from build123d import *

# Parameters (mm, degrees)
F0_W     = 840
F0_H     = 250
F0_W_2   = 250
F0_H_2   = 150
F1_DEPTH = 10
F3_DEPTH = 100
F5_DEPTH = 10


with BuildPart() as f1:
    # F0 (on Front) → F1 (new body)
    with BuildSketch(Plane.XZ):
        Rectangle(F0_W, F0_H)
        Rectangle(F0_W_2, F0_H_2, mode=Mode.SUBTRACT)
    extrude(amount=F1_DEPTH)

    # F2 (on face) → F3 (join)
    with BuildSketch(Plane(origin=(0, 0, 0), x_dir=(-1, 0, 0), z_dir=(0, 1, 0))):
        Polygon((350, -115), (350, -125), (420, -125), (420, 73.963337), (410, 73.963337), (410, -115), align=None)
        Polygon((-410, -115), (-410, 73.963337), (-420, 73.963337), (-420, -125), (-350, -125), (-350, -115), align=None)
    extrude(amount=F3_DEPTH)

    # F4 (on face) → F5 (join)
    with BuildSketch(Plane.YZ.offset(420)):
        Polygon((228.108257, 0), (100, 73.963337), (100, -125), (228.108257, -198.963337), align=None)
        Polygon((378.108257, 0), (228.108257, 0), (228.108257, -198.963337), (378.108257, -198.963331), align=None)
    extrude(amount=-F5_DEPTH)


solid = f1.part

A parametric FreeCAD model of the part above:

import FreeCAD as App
import Part
import Sketcher
Q = App.Units.Quantity


def add_polygon(sketch, points):
    """Adds a closed chain of lines whose ends are joined by coincident constraints."""
    first, n = sketch.GeometryCount, len(points)
    for a, b in zip(points, points[1:] + points[:1]):
        sketch.addGeometry(Part.LineSegment(App.Vector(*a, 0), App.Vector(*b, 0)), False)
    for i in range(n):
        sketch.addConstraint(Sketcher.Constraint("Coincident", first + i, 2, first + (i + 1) % n, 1))

doc = App.newDocument("Part")
body = doc.addObject("PartDesign::Body", "Body")

# Sketch on XZ plane
sketch1 = body.newObject("Sketcher::SketchObject", "Sketch")
sketch1.AttachmentSupport = (doc.getObject("XZ_Plane"), [""])
sketch1.MapMode = "FlatFace"
add_polygon(sketch1, [(-420, 125), (-420, -125), (420, -125), (420, 125)])  # lines 0-3
add_polygon(sketch1, [(125, -75), (-125, -75), (-125, 75), (125, 75)])  # lines 4-7
sketch1.addConstraint([
    Sketcher.Constraint("Vertical", 0),
    Sketcher.Constraint("Horizontal", 1),
    Sketcher.Constraint("Vertical", 2),
    Sketcher.Constraint("Horizontal", 3),
    Sketcher.Constraint("Horizontal", 4),
    Sketcher.Constraint("Vertical", 5),
    Sketcher.Constraint("Horizontal", 6),
    Sketcher.Constraint("Vertical", 7),
    Sketcher.Constraint("Symmetric", 0, 2, 2, 2, -1, 1),
    Sketcher.Constraint("Symmetric", 4, 2, 6, 2, -1, 1),
    Sketcher.Constraint("Equal", 6, 0),
    Sketcher.Constraint("DistanceX", 1, 1, 1, 2, 840.0),
    Sketcher.Constraint("DistanceX", 4, 2, 4, 1, 250.0),
    Sketcher.Constraint("DistanceY", 5, 1, 5, 2, 150.0),
])
pad1 = body.newObject("PartDesign::Pad", "Pad")
pad1.Profile = sketch1
pad1.Length = 10

# Sketch on XZ plane
sketch2 = body.newObject("Sketcher::SketchObject", "Sketch001")
sketch2.AttachmentSupport = (doc.getObject("XZ_Plane"), [""])
sketch2.MapMode = "FlatFace"
add_polygon(sketch2, [(-350, -115), (-350, -125), (-420, -125), (-420, 73.963337), (-410, 73.963337), (-410, -115)])  # lines 0-5
add_polygon(sketch2, [(410, -115), (410, 73.963337), (420, 73.963337), (420, -125), (350, -125), (350, -115)])  # lines 6-11
sketch2.addConstraint([
    Sketcher.Constraint("Vertical", 0),
    Sketcher.Constraint("Horizontal", 1),
    Sketcher.Constraint("Vertical", 2),
    Sketcher.Constraint("Horizontal", 3),
    Sketcher.Constraint("Vertical", 4),
    Sketcher.Constraint("Horizontal", 5),
    Sketcher.Constraint("Vertical", 6),
    Sketcher.Constraint("Horizontal", 7),
    Sketcher.Constraint("Vertical", 8),
    Sketcher.Constraint("Horizontal", 9),
    Sketcher.Constraint("Vertical", 10),
    Sketcher.Constraint("Horizontal", 11),
    Sketcher.Constraint("Symmetric", 3, 2, 6, 2, -2),
    Sketcher.Constraint("Symmetric", 1, 2, 8, 2, -2),
    Sketcher.Constraint("Symmetric", 5, 2, 10, 2, -2),
    Sketcher.Constraint("Equal", 7, 0),
    Sketcher.Constraint("DistanceX", 1, 2, 1, 1, 70.0),
    Sketcher.Constraint("DistanceX", 3, 1, 3, 2, 10.0),
    Sketcher.Constraint("DistanceX", 0, 2, -1, 1, 350.0),
    Sketcher.Constraint("DistanceY", 0, 2, -1, 1, 125.0),
    Sketcher.Constraint("DistanceY", 2, 1, 2, 2, 198.963337),
])
pad2 = body.newObject("PartDesign::Pad", "Pad001")
pad2.Profile = sketch2
pad2.Length = 100
pad2.Reversed = True

# Sketch on YZ plane
sketch3 = body.newObject("Sketcher::SketchObject", "Sketch002")
sketch3.AttachmentSupport = (doc.getObject("YZ_Plane"), [""])
sketch3.MapMode = "FlatFace"
sketch3.AttachmentOffset = App.Placement(App.Vector(0, 0, 420), App.Rotation())
add_polygon(sketch3, [(228.108257, 0), (100, 73.963337), (100, -125), (228.108257, -198.963337), (378.108257, -198.963331), (378.108257, 0)])  # lines 0-5
sketch3.addConstraint([
    Sketcher.Constraint("Vertical", 1),
    Sketcher.Constraint("Vertical", 4),
    Sketcher.Constraint("Horizontal", 5),
    Sketcher.Constraint("PointOnObject", 4, 2, -1),
    Sketcher.Constraint("Parallel", 0, 2),
    Sketcher.Constraint("Vertical", 2, 2, 5, 2),
    Sketcher.Constraint("DistanceX", 5, 2, 5, 1, 150.0),
    Sketcher.Constraint("Angle", 0, Q("150 deg")),
    Sketcher.Constraint("Angle", 3, Q("0.000002 deg")),
    Sketcher.Constraint("DistanceX", -1, 1, 0, 2, 100.0),
    Sketcher.Constraint("DistanceY", 1, 2, -1, 1, 125.0),
    Sketcher.Constraint("DistanceY", 4, 1, 4, 2, 198.963331),
])
pad3 = body.newObject("PartDesign::Pad", "Pad002")
pad3.Profile = sketch3
pad3.Length = 10
pad3.Reversed = True

doc.recompute()
